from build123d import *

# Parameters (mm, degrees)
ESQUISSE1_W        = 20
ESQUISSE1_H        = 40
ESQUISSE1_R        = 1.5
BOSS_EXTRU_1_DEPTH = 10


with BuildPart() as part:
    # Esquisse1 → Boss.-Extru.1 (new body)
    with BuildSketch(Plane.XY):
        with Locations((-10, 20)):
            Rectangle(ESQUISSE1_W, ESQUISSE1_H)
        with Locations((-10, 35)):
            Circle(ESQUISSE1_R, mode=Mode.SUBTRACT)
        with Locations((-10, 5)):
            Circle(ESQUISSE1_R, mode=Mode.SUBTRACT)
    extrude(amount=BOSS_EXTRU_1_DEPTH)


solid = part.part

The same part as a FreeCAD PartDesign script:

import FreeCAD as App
import Part
import Sketcher


def add_polygon(sketch, points):
    """Adds a closed chain of lines whose ends are joined by coincident constraints."""
    first, n = sketch.GeometryCount, len(points)
    for a, b in zip(points, points[1:] + points[:1]):
        sketch.addGeometry(Part.LineSegment(App.Vector(*a, 0), App.Vector(*b, 0)), False)
    for i in range(n):
        sketch.addConstraint(Sketcher.Constraint("Coincident", first + i, 2, first + (i + 1) % n, 1))

doc = App.newDocument("Part")
body = doc.addObject("PartDesign::Body", "Body")

# Sketch on XY plane
sketch1 = body.newObject("Sketcher::SketchObject", "Sketch")
sketch1.AttachmentSupport = (doc.getObject("XY_Plane"), [""])
sketch1.MapMode = "FlatFace"
add_polygon(sketch1, [(-20, 40), (-20, 0), (0, 0), (0, 40)])  # lines 0-3
sketch1.addGeometry(Part.Circle(App.Vector(-10, 5, 0), App.Vector(0, 0, 1), 1.5), False)  # 4
sketch1.addGeometry(Part.Circle(App.Vector(-10, 35, 0), App.Vector(0, 0, 1), 1.5), False)  # 5
sketch1.addConstraint(Sketcher.Constraint("Vertical", 0))
sketch1.addConstraint(Sketcher.Constraint("Horizontal", 1))
sketch1.addConstraint(Sketcher.Constraint("Vertical", 2))
sketch1.addConstraint(Sketcher.Constraint("Horizontal", 3))
sketch1.addConstraint(Sketcher.Constraint("Coincident", 1, 2, -1, 1))
sketch1.addConstraint(Sketcher.Constraint("Equal", 4, 5))
sketch1.addConstraint(Sketcher.Constraint("Vertical", 4, 3, 5, 3))
sketch1.addConstraint(Sketcher.Constraint("Diameter", 4, 3.0))
sketch1.addConstraint(Sketcher.Constraint("DistanceX", 1, 1, 1, 2, 20.0))
sketch1.addConstraint(Sketcher.Constraint("DistanceY", 0, 2, 0, 1, 40.0))
sketch1.addConstraint(Sketcher.Constraint("DistanceX", 4, 3, -1, 1, 10.0))
sketch1.addConstraint(Sketcher.Constraint("DistanceY", -1, 1, 4, 3, 5.0))
sketch1.addConstraint(Sketcher.Constraint("DistanceY", -1, 1, 5, 3, 35.0))
pad1 = body.newObject("PartDesign::Pad", "Pad")
pad1.Profile = sketch1
pad1.Length = 10

doc.recompute()
